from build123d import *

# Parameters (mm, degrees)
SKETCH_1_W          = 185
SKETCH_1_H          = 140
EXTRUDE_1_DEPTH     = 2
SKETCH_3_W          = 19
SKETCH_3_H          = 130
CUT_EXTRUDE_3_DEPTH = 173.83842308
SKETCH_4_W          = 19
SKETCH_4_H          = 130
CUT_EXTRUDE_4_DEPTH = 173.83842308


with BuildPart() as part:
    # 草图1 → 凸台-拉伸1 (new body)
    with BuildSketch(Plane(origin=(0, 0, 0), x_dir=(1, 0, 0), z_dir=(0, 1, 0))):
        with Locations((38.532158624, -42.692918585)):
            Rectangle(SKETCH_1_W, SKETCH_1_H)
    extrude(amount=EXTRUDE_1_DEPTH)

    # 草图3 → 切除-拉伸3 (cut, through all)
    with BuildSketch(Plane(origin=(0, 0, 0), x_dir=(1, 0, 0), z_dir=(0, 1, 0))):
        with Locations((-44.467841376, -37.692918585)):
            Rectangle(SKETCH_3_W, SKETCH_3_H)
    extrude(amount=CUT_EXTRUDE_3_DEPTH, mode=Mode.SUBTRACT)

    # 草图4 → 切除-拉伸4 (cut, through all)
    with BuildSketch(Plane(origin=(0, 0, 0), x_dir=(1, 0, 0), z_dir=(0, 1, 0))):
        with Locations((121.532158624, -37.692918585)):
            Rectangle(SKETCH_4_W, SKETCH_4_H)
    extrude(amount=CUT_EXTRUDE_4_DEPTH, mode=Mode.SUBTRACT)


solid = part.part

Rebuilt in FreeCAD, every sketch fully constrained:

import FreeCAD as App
import Part
import Sketcher
Q = App.Units.Quantity

doc = App.newDocument("Part")
body = doc.addObject("PartDesign::Body", "Body")

sketch1 = doc.addObject("Sketcher::SketchObject", "Sketch")
body.addObject(sketch1)
sketch1.AttachmentSupport = (doc.XZ_Plane, [""])
sketch1.MapMode = "FlatFace"
sketch1.addGeometry(Part.LineSegment(App.Vector(-54, -27, 0), App.Vector(-54, 113, 0)), False)
sketch1.addGeometry(Part.LineSegment(App.Vector(-54, 113, 0), App.Vector(131, 113, 0)), False)
sketch1.addGeometry(Part.LineSegment(App.Vector(131, 113, 0), App.Vector(131, -27, 0)), False)
sketch1.addGeometry(Part.LineSegment(App.Vector(131, -27, 0), App.Vector(-54, -27, 0)), False)
sketch1.addConstraint(Sketcher.Constraint("Coincident", 0, 2, 1, 1))
sketch1.addConstraint(Sketcher.Constraint("Coincident", 1, 2, 2, 1))
sketch1.addConstraint(Sketcher.Constraint("Coincident", 2, 2, 3, 1))
sketch1.addConstraint(Sketcher.Constraint("Coincident", 3, 2, 0, 1))
sketch1.addConstraint(Sketcher.Constraint("Vertical", 0))
sketch1.addConstraint(Sketcher.Constraint("Horizontal", 1))
sketch1.addConstraint(Sketcher.Constraint("Vertical", 2))
sketch1.addConstraint(Sketcher.Constraint("Horizontal", 3))
sketch1.addConstraint(Sketcher.Constraint("DistanceX", 1, 1, 1, 2, Q("185 mm")))
sketch1.addConstraint(Sketcher.Constraint("DistanceY", 0, 1, 0, 2, Q("140 mm")))
sketch1.addConstraint(Sketcher.Constraint("DistanceX", 0, 2, -1, 1, Q("53.967841 mm")))
sketch1.addConstraint(Sketcher.Constraint("DistanceY", -1, 1, 0, 2, Q("112.692919 mm")))
pad1 = doc.addObject("PartDesign::Pad", "Pad")
body.addObject(pad1)
pad1.Profile = sketch1
pad1.Length = 2
pad1.Reversed = True

sketch2 = doc.addObject("Sketcher::SketchObject", "Sketch001")
body.addObject(sketch2)
sketch2.AttachmentSupport = (doc.XZ_Plane, [""])
sketch2.MapMode = "FlatFace"
sketch2.addGeometry(Part.LineSegment(App.Vector(-54, -27, 0), App.Vector(-54, 103, 0)), False)
sketch2.addGeometry(Part.LineSegment(App.Vector(-54, 103, 0), App.Vector(-35, 103, 0)), False)
sketch2.addGeometry(Part.LineSegment(App.Vector(-35, 103, 0), App.Vector(-35, -27, 0)), False)
sketch2.addGeometry(Part.LineSegment(App.Vector(-35, -27, 0), App.Vector(-54, -27, 0)), False)
sketch2.addConstraint(Sketcher.Constraint("Coincident", 0, 2, 1, 1))
sketch2.addConstraint(Sketcher.Constraint("Coincident", 1, 2, 2, 1))
sketch2.addConstraint(Sketcher.Constraint("Coincident", 2, 2, 3, 1))
sketch2.addConstraint(Sketcher.Constraint("Coincident", 3, 2, 0, 1))
sketch2.addConstraint(Sketcher.Constraint("Vertical", 0))
sketch2.addConstraint(Sketcher.Constraint("Horizontal", 1))
sketch2.addConstraint(Sketcher.Constraint("Vertical", 2))
sketch2.addConstraint(Sketcher.Constraint("Horizontal", 3))
sketch2.addConstraint(Sketcher.Constraint("DistanceX", 1, 1, 1, 2, Q("19 mm")))
sketch2.addConstraint(Sketcher.Constraint("DistanceY", 0, 1, 0, 2, Q("130 mm")))
sketch2.addConstraint(Sketcher.Constraint("DistanceX", 0, 2, -1, 1, Q("53.967841 mm")))
sketch2.addConstraint(Sketcher.Constraint("DistanceY", -1, 1, 0, 2, Q("102.692919 mm")))
pocket1 = doc.addObject("PartDesign::Pocket", "Pocket")
body.addObject(pocket1)
pocket1.Profile = sketch2
pocket1.Type = "ThroughAll"

sketch3 = doc.addObject("Sketcher::SketchObject", "Sketch002")
body.addObject(sketch3)
sketch3.AttachmentSupport = (doc.XZ_Plane, [""])
sketch3.MapMode = "FlatFace"
sketch3.addGeometry(Part.LineSegment(App.Vector(112, -27, 0), App.Vector(112, 103, 0)), False)
sketch3.addGeometry(Part.LineSegment(App.Vector(112, 103, 0), App.Vector(131, 103, 0)), False)
sketch3.addGeometry(Part.LineSegment(App.Vector(131, 103, 0), App.Vector(131, -27, 0)), False)
sketch3.addGeometry(Part.LineSegment(App.Vector(131, -27, 0), App.Vector(112, -27, 0)), False)
sketch3.addConstraint(Sketcher.Constraint("Coincident", 0, 2, 1, 1))
sketch3.addConstraint(Sketcher.Constraint("Coincident", 1, 2, 2, 1))
sketch3.addConstraint(Sketcher.Constraint("Coincident", 2, 2, 3, 1))
sketch3.addConstraint(Sketcher.Constraint("Coincident", 3, 2, 0, 1))
sketch3.addConstraint(Sketcher.Constraint("Vertical", 0))
sketch3.addConstraint(Sketcher.Constraint("Horizontal", 1))
sketch3.addConstraint(Sketcher.Constraint("Vertical", 2))
sketch3.addConstraint(Sketcher.Constraint("Horizontal", 3))
sketch3.addConstraint(Sketcher.Constraint("DistanceX", 1, 1, 1, 2, Q("19 mm")))
sketch3.addConstraint(Sketcher.Constraint("DistanceY", 0, 1, 0, 2, Q("130 mm")))
sketch3.addConstraint(Sketcher.Constraint("DistanceX", -1, 1, 0, 2, Q("112.032159 mm")))
sketch3.addConstraint(Sketcher.Constraint("DistanceY", -1, 1, 0, 2, Q("102.692919 mm")))
pocket2 = doc.addObject("PartDesign::Pocket", "Pocket001")
body.addObject(pocket2)
pocket2.Profile = sketch3
pocket2.Type = "ThroughAll"

doc.recompute()
